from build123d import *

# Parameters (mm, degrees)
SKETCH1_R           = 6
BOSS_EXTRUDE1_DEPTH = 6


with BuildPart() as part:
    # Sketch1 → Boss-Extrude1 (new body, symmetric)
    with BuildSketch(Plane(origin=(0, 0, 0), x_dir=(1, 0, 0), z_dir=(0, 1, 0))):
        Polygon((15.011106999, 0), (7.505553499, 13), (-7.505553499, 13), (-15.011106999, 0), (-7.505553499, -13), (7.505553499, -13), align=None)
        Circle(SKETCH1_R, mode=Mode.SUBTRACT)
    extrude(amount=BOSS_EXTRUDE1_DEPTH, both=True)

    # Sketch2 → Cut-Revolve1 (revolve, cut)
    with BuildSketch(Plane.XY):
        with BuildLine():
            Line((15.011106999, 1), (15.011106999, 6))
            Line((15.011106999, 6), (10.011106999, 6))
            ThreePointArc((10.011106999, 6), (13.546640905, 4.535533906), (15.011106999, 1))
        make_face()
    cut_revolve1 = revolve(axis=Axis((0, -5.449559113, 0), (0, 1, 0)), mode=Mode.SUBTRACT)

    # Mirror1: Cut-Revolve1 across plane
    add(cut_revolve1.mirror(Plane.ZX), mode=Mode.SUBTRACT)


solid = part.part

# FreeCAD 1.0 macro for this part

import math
import FreeCAD as App
import Part
import Sketcher

V = App.Vector
Q = App.Units.Quantity


def add_polygon(sketch, points):
    """Adds a closed chain of lines whose ends are joined by coincident constraints."""
    first, n = sketch.GeometryCount, len(points)
    for a, b in zip(points, points[1:] + points[:1]):
        sketch.addGeometry(Part.LineSegment(App.Vector(*a, 0), App.Vector(*b, 0)), False)
    for i in range(n):
        sketch.addConstraint(Sketcher.Constraint("Coincident", first + i, 2, first + (i + 1) % n, 1))

doc = App.newDocument("Part")
body = doc.addObject("PartDesign::Body", "Body")

# Sketch on XZ plane
sketch1 = doc.addObject("Sketcher::SketchObject", "Sketch")
body.addObject(sketch1)
sketch1.AttachmentSupport = (doc.XZ_Plane, [""])
sketch1.MapMode = "FlatFace"
add_polygon(sketch1, [(15, 0), (8, -13), (-8, -13), (-15, 0), (-8, 13), (8, 13)])  # lines 0-5
sketch1.addGeometry(Part.Circle(V(0, 0, 0), V(0, 0, 1), 6), False)  # 6
sketch1.addConstraint(Sketcher.Constraint("Horizontal", 1))
sketch1.addConstraint(Sketcher.Constraint("Horizontal", 4))
sketch1.addConstraint(Sketcher.Constraint("Coincident", 6, 3, -1, 1))
sketch1.addConstraint(Sketcher.Constraint("Symmetric", 0, 2, 3, 2, -1, 1))
sketch1.addConstraint(Sketcher.Constraint("Symmetric", 2, 2, 5, 2, -1, 1))
sketch1.addConstraint(Sketcher.Constraint("PointOnObject", 2, 2, -1))
sketch1.addConstraint(Sketcher.Constraint("Parallel", 2, 5))
sketch1.addConstraint(Sketcher.Constraint("Vertical", 1, 2, 3, 2))
sketch1.addConstraint(Sketcher.Constraint("Diameter", 6, Q("12 mm")))
sketch1.addConstraint(Sketcher.Constraint("Angle", 0, Q("-120 deg")))
sketch1.addConstraint(Sketcher.Constraint("DistanceY", 0, 2, -1, 1, Q("13 mm")))
sketch1.addConstraint(Sketcher.Constraint("DistanceX", 1, 2, 1, 1, Q("15.011107 mm")))
pad1 = doc.addObject("PartDesign::Pad", "Pad")
body.addObject(pad1)
pad1.Profile = sketch1
pad1.Length = 12
pad1.Midplane = True

# Sketch on XY plane
sketch2 = doc.addObject("Sketcher::SketchObject", "Sketch001")
body.addObject(sketch2)
sketch2.AttachmentSupport = (doc.XY_Plane, [""])
sketch2.MapMode = "FlatFace"
sketch2.addGeometry(Part.LineSegment(V(15, 1, 0), V(15, 6, 0)), False)
sketch2.addGeometry(Part.LineSegment(V(15, 6, 0), V(10, 6, 0)), False)
sketch2.addGeometry(Part.ArcOfCircle(Part.Circle(V(10, 1, 0), V(0, 0, 1), 5), math.radians(0), math.radians(90)), False)
sketch2.addConstraint(Sketcher.Constraint("Coincident", 0, 2, 1, 1))
sketch2.addConstraint(Sketcher.Constraint("Tangent", 1, 2, 2, 2))
sketch2.addConstraint(Sketcher.Constraint("Tangent", 2, 1, 0, 1))
sketch2.addConstraint(Sketcher.Constraint("Vertical", 0))
sketch2.addConstraint(Sketcher.Constraint("Horizontal", 1))
sketch2.addConstraint(Sketcher.Constraint("Radius", 2, Q("5 mm")))
sketch2.addConstraint(Sketcher.Constraint("DistanceY", -1, 1, 2, 3, Q("1 mm")))
sketch2.addConstraint(Sketcher.Constraint("DistanceX", -1, 1, 2, 3, Q("10.011107 mm")))
groove = doc.addObject("PartDesign::Groove", "Groove")
body.addObject(groove)
groove.Profile = sketch2
groove.ReferenceAxis = (sketch2, ["V_Axis"])
groove.Angle = 360
doc.recompute()

mirrored = doc.addObject("PartDesign::Mirrored", "Mirrored")
body.addObject(mirrored)
mirrored.Originals = [groove]
mirrored.MirrorPlane = (doc.XZ_Plane, [""])
body.Tip = mirrored

doc.recompute()
